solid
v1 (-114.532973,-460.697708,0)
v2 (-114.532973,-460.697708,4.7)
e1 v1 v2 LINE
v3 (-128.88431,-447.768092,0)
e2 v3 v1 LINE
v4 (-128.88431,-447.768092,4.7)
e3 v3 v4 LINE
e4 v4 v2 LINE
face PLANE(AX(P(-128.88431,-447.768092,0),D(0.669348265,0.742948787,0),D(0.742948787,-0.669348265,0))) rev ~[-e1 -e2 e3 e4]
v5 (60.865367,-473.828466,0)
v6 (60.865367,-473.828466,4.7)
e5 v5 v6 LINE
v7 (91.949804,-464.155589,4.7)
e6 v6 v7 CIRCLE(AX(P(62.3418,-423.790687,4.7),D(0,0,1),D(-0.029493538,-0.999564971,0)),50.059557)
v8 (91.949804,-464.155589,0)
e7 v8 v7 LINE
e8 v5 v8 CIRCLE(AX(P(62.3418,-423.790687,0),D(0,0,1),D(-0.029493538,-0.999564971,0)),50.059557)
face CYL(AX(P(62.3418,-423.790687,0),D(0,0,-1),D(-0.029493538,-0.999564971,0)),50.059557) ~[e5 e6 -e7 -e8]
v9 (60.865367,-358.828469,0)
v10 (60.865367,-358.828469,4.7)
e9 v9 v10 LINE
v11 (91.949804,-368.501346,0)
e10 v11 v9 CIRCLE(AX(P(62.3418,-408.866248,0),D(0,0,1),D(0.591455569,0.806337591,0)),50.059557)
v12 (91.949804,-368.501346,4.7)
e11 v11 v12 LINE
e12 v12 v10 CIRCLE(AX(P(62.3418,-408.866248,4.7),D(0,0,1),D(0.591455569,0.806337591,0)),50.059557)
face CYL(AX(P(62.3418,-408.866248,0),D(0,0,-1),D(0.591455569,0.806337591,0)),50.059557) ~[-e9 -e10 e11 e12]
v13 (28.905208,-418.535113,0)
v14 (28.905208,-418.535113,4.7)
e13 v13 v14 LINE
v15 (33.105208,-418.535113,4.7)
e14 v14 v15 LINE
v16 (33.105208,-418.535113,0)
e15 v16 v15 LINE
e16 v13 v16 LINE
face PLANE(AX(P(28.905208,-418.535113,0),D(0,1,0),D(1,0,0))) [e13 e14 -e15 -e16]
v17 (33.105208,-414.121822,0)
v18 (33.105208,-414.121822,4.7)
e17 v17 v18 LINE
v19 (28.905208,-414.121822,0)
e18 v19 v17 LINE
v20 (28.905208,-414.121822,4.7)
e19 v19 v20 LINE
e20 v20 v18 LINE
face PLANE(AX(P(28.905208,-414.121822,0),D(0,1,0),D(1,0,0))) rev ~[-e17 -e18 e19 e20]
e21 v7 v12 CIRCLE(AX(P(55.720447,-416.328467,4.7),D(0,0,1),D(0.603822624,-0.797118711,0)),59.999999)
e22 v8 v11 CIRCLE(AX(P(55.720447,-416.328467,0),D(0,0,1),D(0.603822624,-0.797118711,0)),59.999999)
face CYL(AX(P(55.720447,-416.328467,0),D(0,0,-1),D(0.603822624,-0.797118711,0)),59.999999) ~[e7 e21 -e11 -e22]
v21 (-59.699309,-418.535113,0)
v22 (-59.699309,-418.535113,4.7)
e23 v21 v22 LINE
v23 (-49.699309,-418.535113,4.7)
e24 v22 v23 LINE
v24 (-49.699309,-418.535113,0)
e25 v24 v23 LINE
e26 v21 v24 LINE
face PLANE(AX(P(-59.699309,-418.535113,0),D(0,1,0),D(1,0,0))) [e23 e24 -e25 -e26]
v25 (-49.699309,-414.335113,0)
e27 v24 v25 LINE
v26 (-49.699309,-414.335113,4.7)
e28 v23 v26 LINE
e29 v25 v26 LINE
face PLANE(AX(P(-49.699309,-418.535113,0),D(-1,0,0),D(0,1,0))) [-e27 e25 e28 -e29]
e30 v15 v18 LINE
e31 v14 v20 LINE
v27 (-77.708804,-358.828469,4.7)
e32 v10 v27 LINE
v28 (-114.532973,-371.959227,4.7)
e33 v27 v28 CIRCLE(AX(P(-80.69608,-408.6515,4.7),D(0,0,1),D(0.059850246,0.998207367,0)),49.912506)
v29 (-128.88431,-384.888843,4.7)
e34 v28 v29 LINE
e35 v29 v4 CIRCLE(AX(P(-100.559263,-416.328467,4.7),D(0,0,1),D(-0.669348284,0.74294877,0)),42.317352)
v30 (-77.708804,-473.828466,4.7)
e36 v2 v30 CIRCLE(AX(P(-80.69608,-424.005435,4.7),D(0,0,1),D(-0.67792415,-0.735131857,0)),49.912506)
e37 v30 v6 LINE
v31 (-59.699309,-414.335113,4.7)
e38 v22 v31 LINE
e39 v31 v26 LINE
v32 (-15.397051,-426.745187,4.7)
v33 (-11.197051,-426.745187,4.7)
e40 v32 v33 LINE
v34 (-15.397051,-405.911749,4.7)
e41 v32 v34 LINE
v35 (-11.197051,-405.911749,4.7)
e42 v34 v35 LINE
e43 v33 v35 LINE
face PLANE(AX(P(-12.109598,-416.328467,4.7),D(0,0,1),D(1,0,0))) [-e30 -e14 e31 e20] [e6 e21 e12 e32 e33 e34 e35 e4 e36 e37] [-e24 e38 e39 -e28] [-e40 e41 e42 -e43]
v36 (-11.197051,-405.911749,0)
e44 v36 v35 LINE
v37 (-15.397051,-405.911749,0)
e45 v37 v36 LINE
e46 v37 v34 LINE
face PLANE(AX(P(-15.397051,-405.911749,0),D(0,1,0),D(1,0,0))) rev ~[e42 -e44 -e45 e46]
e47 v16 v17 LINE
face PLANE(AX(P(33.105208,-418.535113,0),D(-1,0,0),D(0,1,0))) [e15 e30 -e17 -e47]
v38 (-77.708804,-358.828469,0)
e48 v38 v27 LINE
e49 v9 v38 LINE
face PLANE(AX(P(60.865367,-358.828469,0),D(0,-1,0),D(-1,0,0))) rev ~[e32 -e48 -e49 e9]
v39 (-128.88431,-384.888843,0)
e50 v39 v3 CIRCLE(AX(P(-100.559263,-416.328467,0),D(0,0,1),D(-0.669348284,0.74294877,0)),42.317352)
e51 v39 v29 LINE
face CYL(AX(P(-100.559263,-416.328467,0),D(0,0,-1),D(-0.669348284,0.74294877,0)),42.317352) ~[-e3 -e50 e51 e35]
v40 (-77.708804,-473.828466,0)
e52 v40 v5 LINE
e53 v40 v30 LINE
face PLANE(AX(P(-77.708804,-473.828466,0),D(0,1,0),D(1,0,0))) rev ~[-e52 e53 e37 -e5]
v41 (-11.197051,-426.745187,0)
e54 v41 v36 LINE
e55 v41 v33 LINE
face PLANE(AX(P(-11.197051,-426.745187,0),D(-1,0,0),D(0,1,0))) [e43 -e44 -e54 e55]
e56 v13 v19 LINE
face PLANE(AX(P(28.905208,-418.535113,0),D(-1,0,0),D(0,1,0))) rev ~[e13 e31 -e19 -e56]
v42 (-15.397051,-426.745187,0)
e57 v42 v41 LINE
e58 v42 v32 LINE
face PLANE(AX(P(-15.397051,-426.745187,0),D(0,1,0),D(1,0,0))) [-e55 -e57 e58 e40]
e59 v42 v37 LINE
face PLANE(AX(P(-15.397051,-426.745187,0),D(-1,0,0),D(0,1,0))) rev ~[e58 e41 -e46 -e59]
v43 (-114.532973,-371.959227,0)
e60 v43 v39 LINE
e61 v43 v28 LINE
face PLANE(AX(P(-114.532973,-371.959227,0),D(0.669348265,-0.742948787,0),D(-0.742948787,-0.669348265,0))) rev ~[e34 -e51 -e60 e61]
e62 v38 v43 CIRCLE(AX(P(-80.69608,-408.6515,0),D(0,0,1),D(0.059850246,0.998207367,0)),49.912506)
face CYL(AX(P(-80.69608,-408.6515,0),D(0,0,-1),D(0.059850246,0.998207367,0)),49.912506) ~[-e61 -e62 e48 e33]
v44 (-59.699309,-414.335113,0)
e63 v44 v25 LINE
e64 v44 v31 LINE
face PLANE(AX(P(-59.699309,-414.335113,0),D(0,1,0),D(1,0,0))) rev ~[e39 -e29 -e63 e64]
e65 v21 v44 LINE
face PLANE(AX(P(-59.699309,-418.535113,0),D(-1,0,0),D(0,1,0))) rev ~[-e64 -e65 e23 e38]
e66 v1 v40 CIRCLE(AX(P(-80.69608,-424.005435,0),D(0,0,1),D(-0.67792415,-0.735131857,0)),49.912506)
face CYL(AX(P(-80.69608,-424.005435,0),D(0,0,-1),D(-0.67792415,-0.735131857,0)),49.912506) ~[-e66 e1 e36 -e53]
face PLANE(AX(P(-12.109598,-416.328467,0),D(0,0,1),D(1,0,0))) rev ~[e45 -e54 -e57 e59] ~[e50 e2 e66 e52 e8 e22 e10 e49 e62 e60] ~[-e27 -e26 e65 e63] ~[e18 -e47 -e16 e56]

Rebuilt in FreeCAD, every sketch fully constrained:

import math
import FreeCAD as App
import Part
import Sketcher
from FreeCAD import Vector
Q = App.Units.Quantity

doc = App.newDocument("Part")
params = doc.addObject("Spreadsheet::Sheet", "Params")
for row, (alias, value) in enumerate([
    ("sketch1_radius", "59.999999 mm"),
    ("sketch1_width", "10 mm"),
    ("sketch1_width2", "4.2 mm"),
    ("pad1_length", "4.7 mm"),
], start=1):
    params.set(f"A{row}", alias)
    params.set(f"B{row}", "=" + value)
    params.setAlias(f"B{row}", alias)

body = doc.addObject("PartDesign::Body", "Body")

# Sketch on XY plane
sketch1 = body.newObject("Sketcher::SketchObject", "Sketch")
sketch1.AttachmentSupport = (doc.getObject("XY_Plane"), [""])
sketch1.MapMode = "FlatFace"
sketch1.addGeometry(Part.LineSegment(Vector(60.9, -358.8, 0), Vector(-77.7, -358.8, 0)), False)
sketch1.addGeometry(Part.ArcOfCircle(Part.Circle(Vector(-80.7, -408.7, 0), Vector(0, 0, 1), 49.9), math.radians(87), math.radians(133)), False)
sketch1.addGeometry(Part.LineSegment(Vector(-114.5, -372, 0), Vector(-128.9, -384.9, 0)), False)
sketch1.addGeometry(Part.ArcOfCircle(Part.Circle(Vector(-100.6, -416.3, 0), Vector(0, 0, 1), 42.3), math.radians(132), math.radians(228)), False)
sketch1.addGeometry(Part.LineSegment(Vector(-128.9, -447.8, 0), Vector(-114.5, -460.7, 0)), False)
sketch1.addGeometry(Part.ArcOfCircle(Part.Circle(Vector(-80.7, -424, 0), Vector(0, 0, 1), 49.9), math.radians(-133), math.radians(-87)), False)
sketch1.addGeometry(Part.LineSegment(Vector(-77.7, -473.8, 0), Vector(60.9, -473.8, 0)), False)
sketch1.addGeometry(Part.ArcOfCircle(Part.Circle(Vector(62.3, -423.8, 0), Vector(0, 0, 1), 50.1), math.radians(-92), math.radians(-54)), False)
sketch1.addGeometry(Part.ArcOfCircle(Part.Circle(Vector(55.7, -416.3, 0), Vector(0, 0, 1), 60), math.radians(-53), math.radians(53)), False)
sketch1.addGeometry(Part.ArcOfCircle(Part.Circle(Vector(62.3, -408.9, 0), Vector(0, 0, 1), 50.1), math.radians(54), math.radians(92)), False)
sketch1.addGeometry(Part.LineSegment(Vector(-49.7, -418.5, 0), Vector(-59.7, -418.5, 0)), False)
sketch1.addGeometry(Part.LineSegment(Vector(-59.7, -418.5, 0), Vector(-59.7, -414.3, 0)), False)
sketch1.addGeometry(Part.LineSegment(Vector(-59.7, -414.3, 0), Vector(-49.7, -414.3, 0)), False)
sketch1.addGeometry(Part.LineSegment(Vector(-49.7, -414.3, 0), Vector(-49.7, -418.5, 0)), False)
sketch1.addGeometry(Part.LineSegment(Vector(-11.2, -426.7, 0), Vector(-15.4, -426.7, 0)), False)
sketch1.addGeometry(Part.LineSegment(Vector(-15.4, -426.7, 0), Vector(-15.4, -405.9, 0)), False)
sketch1.addGeometry(Part.LineSegment(Vector(-15.4, -405.9, 0), Vector(-11.2, -405.9, 0)), False)
sketch1.addGeometry(Part.LineSegment(Vector(-11.2, -405.9, 0), Vector(-11.2, -426.7, 0)), False)
sketch1.addGeometry(Part.LineSegment(Vector(33.1, -418.5, 0), Vector(28.9, -418.5, 0)), False)
sketch1.addGeometry(Part.LineSegment(Vector(28.9, -418.5, 0), Vector(28.9, -414.1, 0)), False)
sketch1.addGeometry(Part.LineSegment(Vector(28.9, -414.1, 0), Vector(33.1, -414.1, 0)), False)
sketch1.addGeometry(Part.LineSegment(Vector(33.1, -414.1, 0), Vector(33.1, -418.5, 0)), False)
sketch1.addConstraint(Sketcher.Constraint("Coincident", 0, 2, 1, 1))
sketch1.addConstraint(Sketcher.Constraint("Coincident", 1, 2, 2, 1))
sketch1.addConstraint(Sketcher.Constraint("Tangent", 2, 2, 3, 1))
sketch1.addConstraint(Sketcher.Constraint("Tangent", 3, 2, 4, 1))
sketch1.addConstraint(Sketcher.Constraint("Coincident", 4, 2, 5, 1))
sketch1.addConstraint(Sketcher.Constraint("Coincident", 5, 2, 6, 1))
sketch1.addConstraint(Sketcher.Constraint("Coincident", 6, 2, 7, 1))
sketch1.addConstraint(Sketcher.Constraint("Coincident", 7, 2, 8, 1))
sketch1.addConstraint(Sketcher.Constraint("Coincident", 8, 2, 9, 1))
sketch1.addConstraint(Sketcher.Constraint("Coincident", 9, 2, 0, 1))
sketch1.addConstraint(Sketcher.Constraint("Coincident", 10, 2, 11, 1))
sketch1.addConstraint(Sketcher.Constraint("Coincident", 11, 2, 12, 1))
sketch1.addConstraint(Sketcher.Constraint("Coincident", 12, 2, 13, 1))
sketch1.addConstraint(Sketcher.Constraint("Coincident", 13, 2, 10, 1))
sketch1.addConstraint(Sketcher.Constraint("Coincident", 14, 2, 15, 1))
sketch1.addConstraint(Sketcher.Constraint("Coincident", 15, 2, 16, 1))
sketch1.addConstraint(Sketcher.Constraint("Coincident", 16, 2, 17, 1))
sketch1.addConstraint(Sketcher.Constraint("Coincident", 17, 2, 14, 1))
sketch1.addConstraint(Sketcher.Constraint("Coincident", 18, 2, 19, 1))
sketch1.addConstraint(Sketcher.Constraint("Coincident", 19, 2, 20, 1))
sketch1.addConstraint(Sketcher.Constraint("Coincident", 20, 2, 21, 1))
sketch1.addConstraint(Sketcher.Constraint("Coincident", 21, 2, 18, 1))
sketch1.addConstraint(Sketcher.Constraint("Horizontal", 0))
sketch1.addConstraint(Sketcher.Constraint("Horizontal", 6))
sketch1.addConstraint(Sketcher.Constraint("Horizontal", 10))
sketch1.addConstraint(Sketcher.Constraint("Vertical", 11))
sketch1.addConstraint(Sketcher.Constraint("Horizontal", 12))
sketch1.addConstraint(Sketcher.Constraint("Vertical", 13))
sketch1.addConstraint(Sketcher.Constraint("Horizontal", 14))
sketch1.addConstraint(Sketcher.Constraint("Vertical", 15))
sketch1.addConstraint(Sketcher.Constraint("Horizontal", 16))
sketch1.addConstraint(Sketcher.Constraint("Vertical", 17))
sketch1.addConstraint(Sketcher.Constraint("Horizontal", 18))
sketch1.addConstraint(Sketcher.Constraint("Vertical", 19))
sketch1.addConstraint(Sketcher.Constraint("Horizontal", 20))
sketch1.addConstraint(Sketcher.Constraint("Vertical", 21))
sketch1.addConstraint(Sketcher.Constraint("Equal", 1, 5))
sketch1.addConstraint(Sketcher.Constraint("Equal", 7, 9))
sketch1.addConstraint(Sketcher.Constraint("Horizontal", 3, 3, 8, 3))
sketch1.addConstraint(Sketcher.Constraint("Horizontal", 13, 2, 18, 2))
sketch1.addConstraint(Sketcher.Constraint("Vertical", 1, 3, 5, 3))
sketch1.addConstraint(Sketcher.Constraint("Vertical", 7, 3, 9, 3))
sketch1.addConstraint(Sketcher.Constraint("Vertical", 2, 2, 3, 2))
sketch1.addConstraint(Sketcher.Constraint("Vertical", 1, 2, 4, 2))
sketch1.addConstraint(Sketcher.Constraint("Vertical", 0, 2, 5, 2))
sketch1.addConstraint(Sketcher.Constraint("Vertical", 7, 2, 8, 2))
sketch1.addConstraint(Sketcher.Constraint("Equal", 16, 18))
sketch1.addConstraint(Sketcher.Constraint("Equal", 20, 11))
sketch1.addConstraint(Sketcher.Constraint("Radius", 8, Q("59.999999 mm")))
sketch1.addConstraint(Sketcher.Constraint("DistanceX", 10, 2, 10, 1, Q("10 mm")))
sketch1.addConstraint(Sketcher.Constraint("DistanceX", 14, 2, 14, 1, Q("4.2 mm")))
sketch1.addConstraint(Sketcher.Constraint("DistanceY", 3, 3, 0, 2, Q("57.499999 mm")))
sketch1.addConstraint(Sketcher.Constraint("Radius", 3, Q("42.317352 mm")))
sketch1.addConstraint(Sketcher.Constraint("Radius", 1, Q("49.912506 mm")))
sketch1.addConstraint(Sketcher.Constraint("Radius", 7, Q("50.059557 mm")))
sketch1.addConstraint(Sketcher.Constraint("DistanceX", 0, 2, 0, 1, Q("138.574171 mm")))
sketch1.addConstraint(Sketcher.Constraint("DistanceY", 15, 1, 15, 2, Q("20.833438 mm")))
sketch1.addConstraint(Sketcher.Constraint("DistanceY", 19, 1, 19, 2, Q("4.413291 mm")))
sketch1.addConstraint(Sketcher.Constraint("DistanceY", 1, 3, -1, 1, Q("408.6515 mm")))
sketch1.addConstraint(Sketcher.Constraint("DistanceX", -1, 1, 7, 3, Q("62.3418 mm")))
sketch1.addConstraint(Sketcher.Constraint("DistanceX", 1, 3, -1, 1, Q("80.69608 mm")))
sketch1.addConstraint(Sketcher.Constraint("DistanceY", 9, 3, -1, 1, Q("408.866248 mm")))
sketch1.addConstraint(Sketcher.Constraint("DistanceX", 2, 2, -1, 1, Q("128.88431 mm")))
sketch1.addConstraint(Sketcher.Constraint("DistanceY", 4, 2, -1, 1, Q("460.697708 mm")))
sketch1.addConstraint(Sketcher.Constraint("DistanceY", 7, 2, -1, 1, Q("464.155589 mm")))
sketch1.addConstraint(Sketcher.Constraint("DistanceX", 10, 2, -1, 1, Q("59.699309 mm")))
sketch1.addConstraint(Sketcher.Constraint("DistanceX", 14, 2, -1, 1, Q("15.397051 mm")))
sketch1.addConstraint(Sketcher.Constraint("DistanceY", 15, 2, -1, 1, Q("405.911749 mm")))
sketch1.addConstraint(Sketcher.Constraint("DistanceY", 19, 2, -1, 1, Q("414.121822 mm")))
sketch1.addConstraint(Sketcher.Constraint("DistanceX", 18, 2, 8, 3, Q("26.815239 mm")))
sketch1.setExpression("Constraints[48]", "Params.sketch1_radius")
sketch1.setExpression("Constraints[49]", "Params.sketch1_width")
sketch1.setExpression("Constraints[50]", "Params.sketch1_width2")
pad1 = body.newObject("PartDesign::Pad", "Pad")
pad1.Profile = sketch1
pad1.setExpression("Length", "Params.pad1_length")

doc.recompute()
